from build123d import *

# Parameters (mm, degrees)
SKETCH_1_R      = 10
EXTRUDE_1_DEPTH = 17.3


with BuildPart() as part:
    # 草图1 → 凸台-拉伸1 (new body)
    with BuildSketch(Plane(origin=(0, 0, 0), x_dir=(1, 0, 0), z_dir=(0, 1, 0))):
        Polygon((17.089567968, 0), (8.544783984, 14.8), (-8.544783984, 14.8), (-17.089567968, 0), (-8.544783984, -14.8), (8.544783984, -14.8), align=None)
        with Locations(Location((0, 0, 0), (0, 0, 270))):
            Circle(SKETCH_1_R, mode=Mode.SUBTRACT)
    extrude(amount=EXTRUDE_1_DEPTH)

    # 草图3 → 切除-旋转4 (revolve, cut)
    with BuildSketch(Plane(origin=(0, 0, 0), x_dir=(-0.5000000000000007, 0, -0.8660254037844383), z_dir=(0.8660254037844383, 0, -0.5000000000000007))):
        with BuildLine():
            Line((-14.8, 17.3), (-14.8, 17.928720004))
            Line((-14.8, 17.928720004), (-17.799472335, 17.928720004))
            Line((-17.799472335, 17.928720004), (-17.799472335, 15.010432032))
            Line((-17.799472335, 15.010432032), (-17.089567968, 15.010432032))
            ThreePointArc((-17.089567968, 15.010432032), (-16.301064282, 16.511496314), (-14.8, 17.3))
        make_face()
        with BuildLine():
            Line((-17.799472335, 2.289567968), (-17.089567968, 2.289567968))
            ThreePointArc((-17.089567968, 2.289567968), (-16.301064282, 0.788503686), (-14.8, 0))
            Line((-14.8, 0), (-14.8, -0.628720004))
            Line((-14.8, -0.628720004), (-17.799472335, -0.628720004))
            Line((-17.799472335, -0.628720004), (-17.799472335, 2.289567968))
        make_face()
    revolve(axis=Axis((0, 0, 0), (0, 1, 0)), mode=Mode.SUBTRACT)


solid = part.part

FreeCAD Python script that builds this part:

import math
import FreeCAD as App
import Part
import Sketcher

V = App.Vector
Q = App.Units.Quantity


def add_polygon(sketch, points):
    """Adds a closed chain of lines whose ends are joined by coincident constraints."""
    first, n = sketch.GeometryCount, len(points)
    for a, b in zip(points, points[1:] + points[:1]):
        sketch.addGeometry(Part.LineSegment(App.Vector(*a, 0), App.Vector(*b, 0)), False)
    for i in range(n):
        sketch.addConstraint(Sketcher.Constraint("Coincident", first + i, 2, first + (i + 1) % n, 1))

doc = App.newDocument("Part")
body = doc.addObject("PartDesign::Body", "Body")

sketch1 = body.newObject("Sketcher::SketchObject", "Sketch")
sketch1.AttachmentSupport = (doc.getObject("XZ_Plane"), [""])
sketch1.MapMode = "FlatFace"
add_polygon(sketch1, [(17, 0), (9, -15), (-9, -15), (-17, 0), (-9, 15), (9, 15)])
sketch1.addGeometry(Part.Circle(V(0, 0, 0), V(0, 0, 1), 10), False)
sketch1.addConstraint(Sketcher.Constraint("Horizontal", 1))
sketch1.addConstraint(Sketcher.Constraint("Horizontal", 4))
sketch1.addConstraint(Sketcher.Constraint("Coincident", 6, 3, -1, 1))
sketch1.addConstraint(Sketcher.Constraint("Symmetric", 0, 2, 3, 2, -1, 1))
sketch1.addConstraint(Sketcher.Constraint("Symmetric", 2, 2, 5, 2, -1, 1))
sketch1.addConstraint(Sketcher.Constraint("PointOnObject", 2, 2, -1))
sketch1.addConstraint(Sketcher.Constraint("Parallel", 2, 5))
sketch1.addConstraint(Sketcher.Constraint("Vertical", 1, 2, 3, 2))
sketch1.addConstraint(Sketcher.Constraint("Diameter", 6, Q("20 mm")))
sketch1.addConstraint(Sketcher.Constraint("Angle", 0, Q("-120 deg")))
sketch1.addConstraint(Sketcher.Constraint("DistanceY", 0, 2, -1, 1, Q("14.8 mm")))
sketch1.addConstraint(Sketcher.Constraint("DistanceX", 1, 2, 1, 1, Q("17.089568 mm")))
pad1 = body.newObject("PartDesign::Pad", "Pad")
pad1.Profile = sketch1
pad1.Length = 17.3
pad1.Reversed = True

sketch2 = body.newObject("Sketcher::SketchObject", "Sketch001")
sketch2.Placement = App.Placement(V(0, 0, 0), App.Rotation(V(-0.5, 0, -0.866025404), V(0, 1, 0), V(0.866025404, 0, -0.5), "ZXY"))
sketch2.addGeometry(Part.LineSegment(V(-14.8, 17.3, 0), V(-14.8, 17.9, 0)), False)
sketch2.addGeometry(Part.LineSegment(V(-14.8, 17.9, 0), V(-17.8, 17.9, 0)), False)
sketch2.addGeometry(Part.LineSegment(V(-17.8, 17.9, 0), V(-17.8, 15, 0)), False)
sketch2.addGeometry(Part.LineSegment(V(-17.8, 15, 0), V(-17.1, 15, 0)), False)
sketch2.addGeometry(Part.ArcOfCircle(Part.Circle(V(-14.3, 14.5, 0), V(0, 0, 1), 2.9), math.radians(100), math.radians(170)), False)
sketch2.addGeometry(Part.LineSegment(V(-17.1, 2.3, 0), V(-17.8, 2.3, 0)), False)
sketch2.addGeometry(Part.LineSegment(V(-17.8, 2.3, 0), V(-17.8, -0.6, 0)), False)
sketch2.addGeometry(Part.LineSegment(V(-17.8, -0.6, 0), V(-14.8, -0.6, 0)), False)
sketch2.addGeometry(Part.LineSegment(V(-14.8, -0.6, 0), V(-14.8, 0, 0)), False)
sketch2.addGeometry(Part.ArcOfCircle(Part.Circle(V(-14.3, 2.8, 0), V(0, 0, 1), 2.9), math.radians(-170), math.radians(-100)), False)
sketch2.addConstraint(Sketcher.Constraint("Coincident", 0, 2, 1, 1))
sketch2.addConstraint(Sketcher.Constraint("Coincident", 1, 2, 2, 1))
sketch2.addConstraint(Sketcher.Constraint("Coincident", 2, 2, 3, 1))
sketch2.addConstraint(Sketcher.Constraint("Coincident", 3, 2, 4, 2))
sketch2.addConstraint(Sketcher.Constraint("Coincident", 4, 1, 0, 1))
sketch2.addConstraint(Sketcher.Constraint("Coincident", 5, 2, 6, 1))
sketch2.addConstraint(Sketcher.Constraint("Coincident", 6, 2, 7, 1))
sketch2.addConstraint(Sketcher.Constraint("Coincident", 7, 2, 8, 1))
sketch2.addConstraint(Sketcher.Constraint("Coincident", 8, 2, 9, 2))
sketch2.addConstraint(Sketcher.Constraint("Coincident", 9, 1, 5, 1))
sketch2.addConstraint(Sketcher.Constraint("Vertical", 0))
sketch2.addConstraint(Sketcher.Constraint("Horizontal", 1))
sketch2.addConstraint(Sketcher.Constraint("Vertical", 2))
sketch2.addConstraint(Sketcher.Constraint("Horizontal", 3))
sketch2.addConstraint(Sketcher.Constraint("Horizontal", 5))
sketch2.addConstraint(Sketcher.Constraint("Vertical", 6))
sketch2.addConstraint(Sketcher.Constraint("Horizontal", 7))
sketch2.addConstraint(Sketcher.Constraint("Vertical", 8))
sketch2.addConstraint(Sketcher.Constraint("Equal", 4, 9))
sketch2.addConstraint(Sketcher.Constraint("PointOnObject", 8, 2, -1))
sketch2.addConstraint(Sketcher.Constraint("Vertical", 4, 3, 9, 3))
sketch2.addConstraint(Sketcher.Constraint("Vertical", 2, 2, 5, 2))
sketch2.addConstraint(Sketcher.Constraint("Vertical", 4, 1, 7, 2))
sketch2.addConstraint(Sketcher.Constraint("Vertical", 3, 2, 9, 1))
sketch2.addConstraint(Sketcher.Constraint("Equal", 2, 6))
sketch2.addConstraint(Sketcher.Constraint("DistanceX", 0, 2, -1, 1, Q("14.8 mm")))
sketch2.addConstraint(Sketcher.Constraint("DistanceY", -1, 1, 4, 1, Q("17.3 mm")))
sketch2.addConstraint(Sketcher.Constraint("Radius", 4, Q("2.852928 mm")))
sketch2.addConstraint(Sketcher.Constraint("DistanceY", 0, 1, 0, 2, Q("0.62872 mm")))
sketch2.addConstraint(Sketcher.Constraint("DistanceX", 1, 2, 1, 1, Q("2.999472 mm")))
sketch2.addConstraint(Sketcher.Constraint("DistanceX", 3, 1, 3, 2, Q("0.709904 mm")))
sketch2.addConstraint(Sketcher.Constraint("DistanceY", 2, 2, 2, 1, Q("2.918288 mm")))
groove = body.newObject("PartDesign::Groove", "Groove")
groove.Profile = sketch2
groove.ReferenceAxis = (sketch2, ["V_Axis"])
groove.Angle = 360

doc.recompute()
